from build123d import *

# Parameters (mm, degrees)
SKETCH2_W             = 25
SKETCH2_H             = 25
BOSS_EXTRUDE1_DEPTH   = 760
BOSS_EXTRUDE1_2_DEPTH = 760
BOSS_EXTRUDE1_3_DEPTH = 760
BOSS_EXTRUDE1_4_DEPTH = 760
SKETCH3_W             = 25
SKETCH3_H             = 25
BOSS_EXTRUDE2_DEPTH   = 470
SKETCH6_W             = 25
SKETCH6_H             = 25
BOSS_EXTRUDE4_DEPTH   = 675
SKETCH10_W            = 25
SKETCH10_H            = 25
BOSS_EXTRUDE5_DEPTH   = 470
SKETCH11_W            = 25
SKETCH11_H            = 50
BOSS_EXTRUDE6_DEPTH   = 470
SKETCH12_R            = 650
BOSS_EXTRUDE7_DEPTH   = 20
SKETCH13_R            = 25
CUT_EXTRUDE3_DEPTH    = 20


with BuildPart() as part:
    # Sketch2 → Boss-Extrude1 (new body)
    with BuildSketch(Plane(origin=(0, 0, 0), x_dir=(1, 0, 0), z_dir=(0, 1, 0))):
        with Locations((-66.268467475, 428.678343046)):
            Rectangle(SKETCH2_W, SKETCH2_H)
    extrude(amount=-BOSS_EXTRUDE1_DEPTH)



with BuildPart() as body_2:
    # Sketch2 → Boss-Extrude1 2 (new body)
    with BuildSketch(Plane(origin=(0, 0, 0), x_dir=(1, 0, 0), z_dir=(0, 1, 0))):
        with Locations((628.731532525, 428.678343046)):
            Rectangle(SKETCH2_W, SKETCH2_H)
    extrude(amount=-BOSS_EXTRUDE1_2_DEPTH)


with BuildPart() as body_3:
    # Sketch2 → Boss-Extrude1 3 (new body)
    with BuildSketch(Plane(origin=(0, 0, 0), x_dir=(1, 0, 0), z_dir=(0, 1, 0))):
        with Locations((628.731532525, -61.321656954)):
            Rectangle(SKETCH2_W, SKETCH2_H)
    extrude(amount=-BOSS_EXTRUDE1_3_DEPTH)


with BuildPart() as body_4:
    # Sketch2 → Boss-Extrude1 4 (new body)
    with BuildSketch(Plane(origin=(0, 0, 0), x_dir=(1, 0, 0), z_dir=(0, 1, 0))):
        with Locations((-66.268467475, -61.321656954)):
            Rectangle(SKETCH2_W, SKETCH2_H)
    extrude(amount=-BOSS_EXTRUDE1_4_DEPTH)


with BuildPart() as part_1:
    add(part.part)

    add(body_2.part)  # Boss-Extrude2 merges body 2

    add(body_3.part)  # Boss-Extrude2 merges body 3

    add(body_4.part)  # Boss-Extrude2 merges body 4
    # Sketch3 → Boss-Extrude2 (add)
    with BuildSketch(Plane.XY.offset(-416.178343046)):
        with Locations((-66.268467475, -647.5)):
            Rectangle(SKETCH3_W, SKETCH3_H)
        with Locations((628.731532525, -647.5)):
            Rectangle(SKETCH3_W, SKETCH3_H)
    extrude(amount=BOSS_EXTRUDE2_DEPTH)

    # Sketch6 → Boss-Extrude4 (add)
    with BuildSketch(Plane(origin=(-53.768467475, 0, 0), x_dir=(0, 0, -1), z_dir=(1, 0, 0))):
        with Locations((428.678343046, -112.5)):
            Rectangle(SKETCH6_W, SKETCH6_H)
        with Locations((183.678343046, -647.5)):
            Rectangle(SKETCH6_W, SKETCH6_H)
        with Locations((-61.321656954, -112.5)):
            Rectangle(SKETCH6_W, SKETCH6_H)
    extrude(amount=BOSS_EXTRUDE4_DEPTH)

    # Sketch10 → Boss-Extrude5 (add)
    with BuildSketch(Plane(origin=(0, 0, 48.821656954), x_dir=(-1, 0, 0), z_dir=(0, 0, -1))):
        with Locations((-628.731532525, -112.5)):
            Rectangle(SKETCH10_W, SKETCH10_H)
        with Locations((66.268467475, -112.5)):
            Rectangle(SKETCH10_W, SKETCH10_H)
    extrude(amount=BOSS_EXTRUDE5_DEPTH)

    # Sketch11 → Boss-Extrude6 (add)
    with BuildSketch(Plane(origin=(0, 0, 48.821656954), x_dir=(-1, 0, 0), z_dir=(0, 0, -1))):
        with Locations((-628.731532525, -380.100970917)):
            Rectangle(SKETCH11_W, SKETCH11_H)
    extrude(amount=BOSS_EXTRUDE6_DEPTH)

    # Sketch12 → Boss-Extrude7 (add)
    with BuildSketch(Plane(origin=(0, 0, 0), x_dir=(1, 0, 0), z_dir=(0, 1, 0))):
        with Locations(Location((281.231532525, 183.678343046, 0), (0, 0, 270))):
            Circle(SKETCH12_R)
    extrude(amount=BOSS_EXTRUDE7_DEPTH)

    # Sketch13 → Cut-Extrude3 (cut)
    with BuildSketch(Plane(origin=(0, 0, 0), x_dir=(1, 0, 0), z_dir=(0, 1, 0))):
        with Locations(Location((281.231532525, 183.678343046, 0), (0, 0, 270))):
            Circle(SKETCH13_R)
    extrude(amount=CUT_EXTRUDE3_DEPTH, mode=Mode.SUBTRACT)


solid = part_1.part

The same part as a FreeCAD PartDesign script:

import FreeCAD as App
import Part
import Sketcher

doc = App.newDocument("Part")
body = doc.addObject("PartDesign::Body", "Body")

# Sketch on XZ plane
sketch1 = doc.addObject("Sketcher::SketchObject", "Sketch")
body.addObject(sketch1)
sketch1.AttachmentSupport = (doc.XZ_Plane, [""])
sketch1.MapMode = "FlatFace"
sketch1.addGeometry([
    Part.LineSegment(App.Vector(-79, -441, 0), App.Vector(-79, -416, 0)),
    Part.LineSegment(App.Vector(-79, -416, 0), App.Vector(-54, -416, 0)),
    Part.LineSegment(App.Vector(-54, -416, 0), App.Vector(-54, -441, 0)),
    Part.LineSegment(App.Vector(-54, -441, 0), App.Vector(-79, -441, 0)),
], False)
sketch1.addConstraint([
    Sketcher.Constraint("Coincident", 0, 2, 1, 1),
    Sketcher.Constraint("Coincident", 1, 2, 2, 1),
    Sketcher.Constraint("Coincident", 2, 2, 3, 1),
    Sketcher.Constraint("Coincident", 3, 2, 0, 1),
    Sketcher.Constraint("Vertical", 0),
    Sketcher.Constraint("Horizontal", 1),
    Sketcher.Constraint("Vertical", 2),
    Sketcher.Constraint("Horizontal", 3),
    Sketcher.Constraint("Equal", 3, 0),
    Sketcher.Constraint("DistanceX", 1, 1, 1, 2, 25.0),
    Sketcher.Constraint("DistanceX", 0, 2, -1, 1, 78.768467),
    Sketcher.Constraint("DistanceY", 0, 2, -1, 1, 416.178343),
])
pad1 = doc.addObject("PartDesign::Pad", "Pad")
body.addObject(pad1)
pad1.Profile = sketch1
pad1.Length = 760
body2 = doc.addObject("PartDesign::Body", "Body001")

# Sketch on XZ plane
sketch2 = doc.addObject("Sketcher::SketchObject", "Sketch001")
body2.addObject(sketch2)
sketch2.AttachmentSupport = (doc.getObject("XZ_Plane001"), [""])
sketch2.MapMode = "FlatFace"
sketch2.addGeometry([
    Part.LineSegment(App.Vector(616, -441, 0), App.Vector(616, -416, 0)),
    Part.LineSegment(App.Vector(616, -416, 0), App.Vector(641, -416, 0)),
    Part.LineSegment(App.Vector(641, -416, 0), App.Vector(641, -441, 0)),
    Part.LineSegment(App.Vector(641, -441, 0), App.Vector(616, -441, 0)),
], False)
sketch2.addConstraint([
    Sketcher.Constraint("Coincident", 0, 2, 1, 1),
    Sketcher.Constraint("Coincident", 1, 2, 2, 1),
    Sketcher.Constraint("Coincident", 2, 2, 3, 1),
    Sketcher.Constraint("Coincident", 3, 2, 0, 1),
    Sketcher.Constraint("Vertical", 0),
    Sketcher.Constraint("Horizontal", 1),
    Sketcher.Constraint("Vertical", 2),
    Sketcher.Constraint("Horizontal", 3),
    Sketcher.Constraint("Equal", 3, 0),
    Sketcher.Constraint("DistanceX", 1, 1, 1, 2, 25.0),
    Sketcher.Constraint("DistanceX", -1, 1, 0, 2, 616.231533),
    Sketcher.Constraint("DistanceY", 0, 2, -1, 1, 416.178343),
])
pad2 = doc.addObject("PartDesign::Pad", "Pad001")
body2.addObject(pad2)
pad2.Profile = sketch2
pad2.Length = 760
body3 = doc.addObject("PartDesign::Body", "Body002")

# Sketch on XZ plane
sketch3 = doc.addObject("Sketcher::SketchObject", "Sketch002")
body3.addObject(sketch3)
sketch3.AttachmentSupport = (doc.getObject("XZ_Plane002"), [""])
sketch3.MapMode = "FlatFace"
sketch3.addGeometry([
    Part.LineSegment(App.Vector(616, 49, 0), App.Vector(616, 74, 0)),
    Part.LineSegment(App.Vector(616, 74, 0), App.Vector(641, 74, 0)),
    Part.LineSegment(App.Vector(641, 74, 0), App.Vector(641, 49, 0)),
    Part.LineSegment(App.Vector(641, 49, 0), App.Vector(616, 49, 0)),
], False)
sketch3.addConstraint([
    Sketcher.Constraint("Coincident", 0, 2, 1, 1),
    Sketcher.Constraint("Coincident", 1, 2, 2, 1),
    Sketcher.Constraint("Coincident", 2, 2, 3, 1),
    Sketcher.Constraint("Coincident", 3, 2, 0, 1),
    Sketcher.Constraint("Vertical", 0),
    Sketcher.Constraint("Horizontal", 1),
    Sketcher.Constraint("Vertical", 2),
    Sketcher.Constraint("Horizontal", 3),
    Sketcher.Constraint("Equal", 3, 0),
    Sketcher.Constraint("DistanceX", 1, 1, 1, 2, 25.0),
    Sketcher.Constraint("DistanceX", -1, 1, 0, 2, 616.231533),
    Sketcher.Constraint("DistanceY", -1, 1, 0, 2, 73.821657),
])
pad3 = doc.addObject("PartDesign::Pad", "Pad002")
body3.addObject(pad3)
pad3.Profile = sketch3
pad3.Length = 760
body4 = doc.addObject("PartDesign::Body", "Body003")

# Sketch on XZ plane
sketch4 = doc.addObject("Sketcher::SketchObject", "Sketch003")
body4.addObject(sketch4)
sketch4.AttachmentSupport = (doc.getObject("XZ_Plane003"), [""])
sketch4.MapMode = "FlatFace"
sketch4.addGeometry([
    Part.LineSegment(App.Vector(-79, 49, 0), App.Vector(-79, 74, 0)),
    Part.LineSegment(App.Vector(-79, 74, 0), App.Vector(-54, 74, 0)),
    Part.LineSegment(App.Vector(-54, 74, 0), App.Vector(-54, 49, 0)),
    Part.LineSegment(App.Vector(-54, 49, 0), App.Vector(-79, 49, 0)),
], False)
sketch4.addConstraint([
    Sketcher.Constraint("Coincident", 0, 2, 1, 1),
    Sketcher.Constraint("Coincident", 1, 2, 2, 1),
    Sketcher.Constraint("Coincident", 2, 2, 3, 1),
    Sketcher.Constraint("Coincident", 3, 2, 0, 1),
    Sketcher.Constraint("Vertical", 0),
    Sketcher.Constraint("Horizontal", 1),
    Sketcher.Constraint("Vertical", 2),
    Sketcher.Constraint("Horizontal", 3),
    Sketcher.Constraint("Equal", 3, 0),
    Sketcher.Constraint("DistanceX", 1, 1, 1, 2, 25.0),
    Sketcher.Constraint("DistanceX", 0, 2, -1, 1, 78.768467),
    Sketcher.Constraint("DistanceY", -1, 1, 0, 2, 73.821657),
])
pad4 = doc.addObject("PartDesign::Pad", "Pad003")
body4.addObject(pad4)
pad4.Profile = sketch4
pad4.Length = 760
body.AllowCompound = True
doc.recompute()

boolean = doc.addObject("PartDesign::Boolean", "Boolean")
body.addObject(boolean)
boolean.Type = "Fuse"
boolean.addObjects([body2])
doc.recompute()

boolean2 = doc.addObject("PartDesign::Boolean", "Boolean001")
body.addObject(boolean2)
boolean2.Type = "Fuse"
boolean2.addObjects([body3])
doc.recompute()

boolean3 = doc.addObject("PartDesign::Boolean", "Boolean002")
body.addObject(boolean3)
boolean3.Type = "Fuse"
boolean3.addObjects([body4])

# Sketch on XY plane
sketch5 = doc.addObject("Sketcher::SketchObject", "Sketch004")
body.addObject(sketch5)
sketch5.AttachmentSupport = (doc.XY_Plane, [""])
sketch5.MapMode = "FlatFace"
sketch5.AttachmentOffset = App.Placement(App.Vector(0, 0, -416.178343), App.Rotation())
sketch5.addGeometry([
    Part.LineSegment(App.Vector(-79, -635, 0), App.Vector(-79, -660, 0)),  # 0
    Part.LineSegment(App.Vector(-79, -660, 0), App.Vector(-54, -660, 0)),  # 1
    Part.LineSegment(App.Vector(-54, -660, 0), App.Vector(-54, -635, 0)),  # 2
    Part.LineSegment(App.Vector(-54, -635, 0), App.Vector(-79, -635, 0)),  # 3
    Part.LineSegment(App.Vector(616, -635, 0), App.Vector(616, -660, 0)),  # 4
    Part.LineSegment(App.Vector(616, -660, 0), App.Vector(641, -660, 0)),  # 5
    Part.LineSegment(App.Vector(641, -660, 0), App.Vector(641, -635, 0)),  # 6
    Part.LineSegment(App.Vector(641, -635, 0), App.Vector(616, -635, 0)),  # 7
], False)
sketch5.addConstraint([
    Sketcher.Constraint("Coincident", 0, 2, 1, 1),
    Sketcher.Constraint("Coincident", 1, 2, 2, 1),
    Sketcher.Constraint("Coincident", 2, 2, 3, 1),
    Sketcher.Constraint("Coincident", 3, 2, 0, 1),
    Sketcher.Constraint("Coincident", 4, 2, 5, 1),
    Sketcher.Constraint("Coincident", 5, 2, 6, 1),
    Sketcher.Constraint("Coincident", 6, 2, 7, 1),
    Sketcher.Constraint("Coincident", 7, 2, 4, 1),
    Sketcher.Constraint("Vertical", 0),
    Sketcher.Constraint("Horizontal", 1),
    Sketcher.Constraint("Vertical", 2),
    Sketcher.Constraint("Horizontal", 3),
    Sketcher.Constraint("Vertical", 4),
    Sketcher.Constraint("Horizontal", 5),
    Sketcher.Constraint("Vertical", 6),
    Sketcher.Constraint("Horizontal", 7),
    Sketcher.Constraint("Horizontal", 1, 2, 4, 2),
    Sketcher.Constraint("Horizontal", 3, 2, 6, 2),
    Sketcher.Constraint("Equal", 3, 5),
    Sketcher.Constraint("Equal", 7, 0),
    Sketcher.Constraint("DistanceX", 1, 1, 1, 2, 25.0),
    Sketcher.Constraint("DistanceY", 0, 2, -1, 1, 660.0),
    Sketcher.Constraint("DistanceX", 1, 2, 4, 2, 670.0),
    Sketcher.Constraint("DistanceX", 0, 2, -1, 1, 78.768467),
])
pad5 = doc.addObject("PartDesign::Pad", "Pad004")
body.addObject(pad5)
pad5.Profile = sketch5
pad5.Length = 470

# Sketch on YZ plane
sketch6 = doc.addObject("Sketcher::SketchObject", "Sketch005")
body.addObject(sketch6)
sketch6.AttachmentSupport = (doc.YZ_Plane, [""])
sketch6.MapMode = "FlatFace"
sketch6.AttachmentOffset = App.Placement(App.Vector(0, 0, -53.768467), App.Rotation())
sketch6.addGeometry([
    Part.LineSegment(App.Vector(-100, -416, 0), App.Vector(-125, -416, 0)),  # 0
    Part.LineSegment(App.Vector(-125, -416, 0), App.Vector(-125, -441, 0)),  # 1
    Part.LineSegment(App.Vector(-125, -441, 0), App.Vector(-100, -441, 0)),  # 2
    Part.LineSegment(App.Vector(-100, -441, 0), App.Vector(-100, -416, 0)),  # 3
    Part.LineSegment(App.Vector(-635, -171, 0), App.Vector(-660, -171, 0)),  # 4
    Part.LineSegment(App.Vector(-660, -171, 0), App.Vector(-660, -196, 0)),  # 5
    Part.LineSegment(App.Vector(-660, -196, 0), App.Vector(-635, -196, 0)),  # 6
    Part.LineSegment(App.Vector(-635, -196, 0), App.Vector(-635, -171, 0)),  # 7
    Part.LineSegment(App.Vector(-100, 74, 0), App.Vector(-125, 74, 0)),  # 8
    Part.LineSegment(App.Vector(-125, 74, 0), App.Vector(-125, 49, 0)),  # 9
    Part.LineSegment(App.Vector(-125, 49, 0), App.Vector(-100, 49, 0)),  # 10
    Part.LineSegment(App.Vector(-100, 49, 0), App.Vector(-100, 74, 0)),  # 11
], False)
sketch6.addConstraint([
    Sketcher.Constraint("Coincident", 0, 2, 1, 1),
    Sketcher.Constraint("Coincident", 1, 2, 2, 1),
    Sketcher.Constraint("Coincident", 2, 2, 3, 1),
    Sketcher.Constraint("Coincident", 3, 2, 0, 1),
    Sketcher.Constraint("Coincident", 4, 2, 5, 1),
    Sketcher.Constraint("Coincident", 5, 2, 6, 1),
    Sketcher.Constraint("Coincident", 6, 2, 7, 1),
    Sketcher.Constraint("Coincident", 7, 2, 4, 1),
    Sketcher.Constraint("Coincident", 8, 2, 9, 1),
    Sketcher.Constraint("Coincident", 9, 2, 10, 1),
    Sketcher.Constraint("Coincident", 10, 2, 11, 1),
    Sketcher.Constraint("Coincident", 11, 2, 8, 1),
    Sketcher.Constraint("Horizontal", 0),
    Sketcher.Constraint("Vertical", 1),
    Sketcher.Constraint("Horizontal", 2),
    Sketcher.Constraint("Vertical", 3),
    Sketcher.Constraint("Horizontal", 4),
    Sketcher.Constraint("Vertical", 5),
    Sketcher.Constraint("Horizontal", 6),
    Sketcher.Constraint("Vertical", 7),
    Sketcher.Constraint("Horizontal", 8),
    Sketcher.Constraint("Vertical", 9),
    Sketcher.Constraint("Horizontal", 10),
    Sketcher.Constraint("Vertical", 11),
    Sketcher.Constraint("Vertical", 1, 2, 8, 2),
    Sketcher.Constraint("Vertical", 3, 2, 10, 2),
    Sketcher.Constraint("Equal", 2, 4),
    Sketcher.Constraint("Equal", 10, 1),
    Sketcher.Constraint("Equal", 3, 5),
    Sketcher.Constraint("Equal", 7, 9),
    Sketcher.Constraint("DistanceX", 0, 2, 0, 1, 25.0),
    Sketcher.Constraint("DistanceX", 0, 2, -1, 1, 125.0),
    Sketcher.Constraint("DistanceX", 4, 2, -1, 1, 660.0),
    Sketcher.Constraint("DistanceY", 0, 2, 4, 2, 245.0),
    Sketcher.Constraint("DistanceY", 0, 2, 8, 2, 490.0),
    Sketcher.Constraint("DistanceY", 0, 2, -1, 1, 416.178343),
])
pad6 = doc.addObject("PartDesign::Pad", "Pad005")
body.addObject(pad6)
pad6.Profile = sketch6
pad6.Length = 675

# Sketch on XY plane
sketch7 = doc.addObject("Sketcher::SketchObject", "Sketch006")
body.addObject(sketch7)
sketch7.AttachmentSupport = (doc.XY_Plane, [""])
sketch7.MapMode = "FlatFace"
sketch7.AttachmentOffset = App.Placement(App.Vector(0, 0, 48.821657), App.Rotation())
sketch7.addGeometry([
    Part.LineSegment(App.Vector(641, -100, 0), App.Vector(641, -125, 0)),  # 0
    Part.LineSegment(App.Vector(641, -125, 0), App.Vector(616, -125, 0)),  # 1
    Part.LineSegment(App.Vector(616, -125, 0), App.Vector(616, -100, 0)),  # 2
    Part.LineSegment(App.Vector(616, -100, 0), App.Vector(641, -100, 0)),  # 3
    Part.LineSegment(App.Vector(-54, -100, 0), App.Vector(-54, -125, 0)),  # 4
    Part.LineSegment(App.Vector(-54, -125, 0), App.Vector(-79, -125, 0)),  # 5
    Part.LineSegment(App.Vector(-79, -125, 0), App.Vector(-79, -100, 0)),  # 6
    Part.LineSegment(App.Vector(-79, -100, 0), App.Vector(-54, -100, 0)),  # 7
], False)
sketch7.addConstraint([
    Sketcher.Constraint("Coincident", 0, 2, 1, 1),
    Sketcher.Constraint("Coincident", 1, 2, 2, 1),
    Sketcher.Constraint("Coincident", 2, 2, 3, 1),
    Sketcher.Constraint("Coincident", 3, 2, 0, 1),
    Sketcher.Constraint("Coincident", 4, 2, 5, 1),
    Sketcher.Constraint("Coincident", 5, 2, 6, 1),
    Sketcher.Constraint("Coincident", 6, 2, 7, 1),
    Sketcher.Constraint("Coincident", 7, 2, 4, 1),
    Sketcher.Constraint("Vertical", 0),
    Sketcher.Constraint("Horizontal", 1),
    Sketcher.Constraint("Vertical", 2),
    Sketcher.Constraint("Horizontal", 3),
    Sketcher.Constraint("Vertical", 4),
    Sketcher.Constraint("Horizontal", 5),
    Sketcher.Constraint("Vertical", 6),
    Sketcher.Constraint("Horizontal", 7),
    Sketcher.Constraint("Horizontal", 1, 2, 4, 2),
    Sketcher.Constraint("Horizontal", 3, 2, 6, 2),
    Sketcher.Constraint("Equal", 3, 5),
    Sketcher.Constraint("Equal", 7, 0),
    Sketcher.Constraint("DistanceX", 1, 2, 1, 1, 25.0),
    Sketcher.Constraint("DistanceY", 0, 2, -1, 1, 125.0),
    Sketcher.Constraint("DistanceX", 4, 2, 1, 2, 670.0),
    Sketcher.Constraint("DistanceX", -1, 1, 0, 2, 641.231533),
])
pad7 = doc.addObject("PartDesign::Pad", "Pad006")
body.addObject(pad7)
pad7.Profile = sketch7
pad7.Length = 470
pad7.Reversed = True

# Sketch on XY plane
sketch8 = doc.addObject("Sketcher::SketchObject", "Sketch007")
body.addObject(sketch8)
sketch8.AttachmentSupport = (doc.XY_Plane, [""])
sketch8.MapMode = "FlatFace"
sketch8.AttachmentOffset = App.Placement(App.Vector(0, 0, 48.821657), App.Rotation())
sketch8.addGeometry([
    Part.LineSegment(App.Vector(641, -355, 0), App.Vector(641, -405, 0)),
    Part.LineSegment(App.Vector(641, -405, 0), App.Vector(616, -405, 0)),
    Part.LineSegment(App.Vector(616, -405, 0), App.Vector(616, -355, 0)),
    Part.LineSegment(App.Vector(616, -355, 0), App.Vector(641, -355, 0)),
], False)
sketch8.addConstraint([
    Sketcher.Constraint("Coincident", 0, 2, 1, 1),
    Sketcher.Constraint("Coincident", 1, 2, 2, 1),
    Sketcher.Constraint("Coincident", 2, 2, 3, 1),
    Sketcher.Constraint("Coincident", 3, 2, 0, 1),
    Sketcher.Constraint("Vertical", 0),
    Sketcher.Constraint("Horizontal", 1),
    Sketcher.Constraint("Vertical", 2),
    Sketcher.Constraint("Horizontal", 3),
    Sketcher.Constraint("DistanceX", 1, 2, 1, 1, 25.0),
    Sketcher.Constraint("DistanceY", 0, 2, 0, 1, 50.0),
    Sketcher.Constraint("DistanceY", 0, 2, -1, 1, 405.100971),
    Sketcher.Constraint("DistanceX", -1, 1, 0, 2, 641.231533),
])
pad8 = doc.addObject("PartDesign::Pad", "Pad007")
body.addObject(pad8)
pad8.Profile = sketch8
pad8.Length = 470
pad8.Reversed = True

# Sketch on XZ plane
sketch9 = doc.addObject("Sketcher::SketchObject", "Sketch008")
body.addObject(sketch9)
sketch9.AttachmentSupport = (doc.XZ_Plane, [""])
sketch9.MapMode = "FlatFace"
sketch9.addGeometry(Part.Circle(App.Vector(281, -184, 0), App.Vector(0, 0, 1), 650), False)
sketch9.addConstraint([
    Sketcher.Constraint("Diameter", 0, 1300.0),
    Sketcher.Constraint("DistanceX", -1, 1, 0, 3, 281.231533),
    Sketcher.Constraint("DistanceY", 0, 3, -1, 1, 183.678343),
])
pad9 = doc.addObject("PartDesign::Pad", "Pad008")
body.addObject(pad9)
pad9.Profile = sketch9
pad9.Length = 20
pad9.Reversed = True

# Sketch on XZ plane
sketch10 = doc.addObject("Sketcher::SketchObject", "Sketch009")
body.addObject(sketch10)
sketch10.AttachmentSupport = (doc.XZ_Plane, [""])
sketch10.MapMode = "FlatFace"
sketch10.addGeometry(Part.Circle(App.Vector(281, -184, 0), App.Vector(0, 0, 1), 25), False)
sketch10.addConstraint([
    Sketcher.Constraint("Diameter", 0, 50.0),
    Sketcher.Constraint("DistanceX", -1, 1, 0, 3, 281.231533),
    Sketcher.Constraint("DistanceY", 0, 3, -1, 1, 183.678343),
])
pocket1 = doc.addObject("PartDesign::Pocket", "Pocket")
body.addObject(pocket1)
pocket1.Profile = sketch10
pocket1.Length = 20

doc.recompute()
